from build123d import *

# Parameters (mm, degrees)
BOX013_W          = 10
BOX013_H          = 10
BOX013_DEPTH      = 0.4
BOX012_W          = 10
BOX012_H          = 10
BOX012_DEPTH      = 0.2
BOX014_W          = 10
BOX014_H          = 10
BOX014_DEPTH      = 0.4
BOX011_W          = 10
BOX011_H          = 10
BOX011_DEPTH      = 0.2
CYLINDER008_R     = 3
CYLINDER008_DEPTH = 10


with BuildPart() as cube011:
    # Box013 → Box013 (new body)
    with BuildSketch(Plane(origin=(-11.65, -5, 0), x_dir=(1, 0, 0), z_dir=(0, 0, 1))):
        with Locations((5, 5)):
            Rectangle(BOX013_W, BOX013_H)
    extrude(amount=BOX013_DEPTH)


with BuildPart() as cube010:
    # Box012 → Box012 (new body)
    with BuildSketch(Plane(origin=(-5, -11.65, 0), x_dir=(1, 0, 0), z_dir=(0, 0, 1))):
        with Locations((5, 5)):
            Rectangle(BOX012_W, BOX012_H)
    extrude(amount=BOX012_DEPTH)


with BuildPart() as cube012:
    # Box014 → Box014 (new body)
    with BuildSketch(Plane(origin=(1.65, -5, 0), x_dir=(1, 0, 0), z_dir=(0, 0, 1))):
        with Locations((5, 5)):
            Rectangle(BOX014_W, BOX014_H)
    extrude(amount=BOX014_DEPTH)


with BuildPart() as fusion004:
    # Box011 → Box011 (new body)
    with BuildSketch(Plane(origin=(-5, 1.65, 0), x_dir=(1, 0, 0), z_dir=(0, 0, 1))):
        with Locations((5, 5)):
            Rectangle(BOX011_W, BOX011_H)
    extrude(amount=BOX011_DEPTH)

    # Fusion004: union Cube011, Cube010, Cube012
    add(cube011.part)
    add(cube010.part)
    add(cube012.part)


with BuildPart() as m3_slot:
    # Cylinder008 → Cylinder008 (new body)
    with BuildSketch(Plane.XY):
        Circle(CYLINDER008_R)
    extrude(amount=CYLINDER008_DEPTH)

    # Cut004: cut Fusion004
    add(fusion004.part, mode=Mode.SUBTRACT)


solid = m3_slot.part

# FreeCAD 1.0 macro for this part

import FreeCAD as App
import Part
import Sketcher

V = App.Vector


def add_polygon(sketch, points):
    """Adds a closed chain of lines whose ends are joined by coincident constraints."""
    first, n = sketch.GeometryCount, len(points)
    for a, b in zip(points, points[1:] + points[:1]):
        sketch.addGeometry(Part.LineSegment(App.Vector(*a, 0), App.Vector(*b, 0)), False)
    for i in range(n):
        sketch.addConstraint(Sketcher.Constraint("Coincident", first + i, 2, first + (i + 1) % n, 1))

doc = App.newDocument("Part")
params = doc.addObject("Spreadsheet::Sheet", "Params")
for row, (alias, value) in enumerate([
    ("sketch1_width", "10 mm"),
    ("pad1_length", "0.4 mm"),
    ("sketch2_width", "10 mm"),
    ("pad2_length", "0.2 mm"),
    ("sketch3_width", "10 mm"),
    ("pad3_length", "0.4 mm"),
    ("sketch4_width", "10 mm"),
    ("pad4_length", "0.2 mm"),
    ("sketch5_diameter", "6 mm"),
    ("pad5_length", "10 mm"),
], start=1):
    params.set(f"A{row}", alias)
    params.set(f"B{row}", "=" + value)
    params.setAlias(f"B{row}", alias)

body = doc.addObject("PartDesign::Body", "Body")

# Sketch on XY plane
sketch1 = doc.addObject("Sketcher::SketchObject", "Sketch")
body.addObject(sketch1)
sketch1.AttachmentSupport = (doc.XY_Plane, [""])
sketch1.MapMode = "FlatFace"
add_polygon(sketch1, [(-12, 5), (-12, -5), (-2, -5), (-2, 5)])  # lines 0-3
sketch1.addConstraint([
    Sketcher.Constraint("Vertical", 0),
    Sketcher.Constraint("Horizontal", 1),
    Sketcher.Constraint("Vertical", 2),
    Sketcher.Constraint("Horizontal", 3),
    Sketcher.Constraint("Equal", 3, 0),
    Sketcher.Constraint("DistanceX", 1, 1, 1, 2, 10.0),
    Sketcher.Constraint("DistanceY", 0, 2, -1, 1, 5.0),
    Sketcher.Constraint("DistanceX", 0, 2, -1, 1, 11.65),
])
sketch1.setExpression("Constraints[9]", "Params.sketch1_width")
pad1 = doc.addObject("PartDesign::Pad", "Pad")
body.addObject(pad1)
pad1.Profile = sketch1
pad1.setExpression("Length", "Params.pad1_length")
body2 = doc.addObject("PartDesign::Body", "Body001")

# Sketch on XY plane
sketch2 = doc.addObject("Sketcher::SketchObject", "Sketch001")
body2.addObject(sketch2)
sketch2.AttachmentSupport = (doc.getObject("XY_Plane001"), [""])
sketch2.MapMode = "FlatFace"
add_polygon(sketch2, [(-5, -2), (-5, -12), (5, -12), (5, -2)])  # lines 0-3
sketch2.addConstraint([
    Sketcher.Constraint("Vertical", 0),
    Sketcher.Constraint("Horizontal", 1),
    Sketcher.Constraint("Vertical", 2),
    Sketcher.Constraint("Horizontal", 3),
    Sketcher.Constraint("Equal", 3, 0),
    Sketcher.Constraint("DistanceX", 1, 1, 1, 2, 10.0),
    Sketcher.Constraint("DistanceX", 0, 2, -1, 1, 5.0),
    Sketcher.Constraint("DistanceY", 0, 2, -1, 1, 11.65),
])
sketch2.setExpression("Constraints[9]", "Params.sketch2_width")
pad2 = doc.addObject("PartDesign::Pad", "Pad001")
body2.addObject(pad2)
pad2.Profile = sketch2
pad2.setExpression("Length", "Params.pad2_length")
body3 = doc.addObject("PartDesign::Body", "Body002")

# Sketch on XY plane
sketch3 = doc.addObject("Sketcher::SketchObject", "Sketch002")
body3.addObject(sketch3)
sketch3.AttachmentSupport = (doc.getObject("XY_Plane002"), [""])
sketch3.MapMode = "FlatFace"
add_polygon(sketch3, [(2, 5), (2, -5), (12, -5), (12, 5)])  # lines 0-3
sketch3.addConstraint([
    Sketcher.Constraint("Vertical", 0),
    Sketcher.Constraint("Horizontal", 1),
    Sketcher.Constraint("Vertical", 2),
    Sketcher.Constraint("Horizontal", 3),
    Sketcher.Constraint("Equal", 3, 0),
    Sketcher.Constraint("DistanceX", 1, 1, 1, 2, 10.0),
    Sketcher.Constraint("DistanceY", 0, 2, -1, 1, 5.0),
    Sketcher.Constraint("DistanceX", -1, 1, 0, 2, 1.65),
])
sketch3.setExpression("Constraints[9]", "Params.sketch3_width")
pad3 = doc.addObject("PartDesign::Pad", "Pad002")
body3.addObject(pad3)
pad3.Profile = sketch3
pad3.setExpression("Length", "Params.pad3_length")
body4 = doc.addObject("PartDesign::Body", "Body003")

# Sketch on XY plane
sketch4 = doc.addObject("Sketcher::SketchObject", "Sketch003")
body4.addObject(sketch4)
sketch4.AttachmentSupport = (doc.getObject("XY_Plane003"), [""])
sketch4.MapMode = "FlatFace"
add_polygon(sketch4, [(-5, 12), (-5, 2), (5, 2), (5, 12)])  # lines 0-3
sketch4.addConstraint([
    Sketcher.Constraint("Vertical", 0),
    Sketcher.Constraint("Horizontal", 1),
    Sketcher.Constraint("Vertical", 2),
    Sketcher.Constraint("Horizontal", 3),
    Sketcher.Constraint("Equal", 3, 0),
    Sketcher.Constraint("DistanceX", 1, 1, 1, 2, 10.0),
    Sketcher.Constraint("DistanceX", 0, 2, -1, 1, 5.0),
    Sketcher.Constraint("DistanceY", -1, 1, 0, 2, 1.65),
])
sketch4.setExpression("Constraints[9]", "Params.sketch4_width")
pad4 = doc.addObject("PartDesign::Pad", "Pad003")
body4.addObject(pad4)
pad4.Profile = sketch4
pad4.setExpression("Length", "Params.pad4_length")
doc.recompute()

boolean = doc.addObject("PartDesign::Boolean", "Boolean")
body4.addObject(boolean)
boolean.Type = "Fuse"
boolean.addObjects([body])
doc.recompute()

boolean2 = doc.addObject("PartDesign::Boolean", "Boolean001")
body4.addObject(boolean2)
boolean2.Type = "Fuse"
boolean2.addObjects([body2])
doc.recompute()

boolean3 = doc.addObject("PartDesign::Boolean", "Boolean002")
body4.addObject(boolean3)
boolean3.Type = "Fuse"
boolean3.addObjects([body3])
body5 = doc.addObject("PartDesign::Body", "Body004")

# Sketch on XY plane
sketch5 = doc.addObject("Sketcher::SketchObject", "Sketch004")
body5.addObject(sketch5)
sketch5.AttachmentSupport = (doc.getObject("XY_Plane004"), [""])
sketch5.MapMode = "FlatFace"
sketch5.addGeometry(Part.Circle(V(0, 0, 0), V(0, 0, 1), 3), False)
sketch5.addConstraint([
    Sketcher.Constraint("Coincident", 0, 3, -1, 1),
    Sketcher.Constraint("Diameter", 0, 6.0),
])
sketch5.setExpression("Constraints[1]", "Params.sketch5_diameter")
pad5 = doc.addObject("PartDesign::Pad", "Pad004")
body5.addObject(pad5)
pad5.Profile = sketch5
pad5.setExpression("Length", "Params.pad5_length")
doc.recompute()

boolean4 = doc.addObject("PartDesign::Boolean", "Boolean003")
body5.addObject(boolean4)
boolean4.Type = "Cut"
boolean4.addObjects([body4])

doc.recompute()
